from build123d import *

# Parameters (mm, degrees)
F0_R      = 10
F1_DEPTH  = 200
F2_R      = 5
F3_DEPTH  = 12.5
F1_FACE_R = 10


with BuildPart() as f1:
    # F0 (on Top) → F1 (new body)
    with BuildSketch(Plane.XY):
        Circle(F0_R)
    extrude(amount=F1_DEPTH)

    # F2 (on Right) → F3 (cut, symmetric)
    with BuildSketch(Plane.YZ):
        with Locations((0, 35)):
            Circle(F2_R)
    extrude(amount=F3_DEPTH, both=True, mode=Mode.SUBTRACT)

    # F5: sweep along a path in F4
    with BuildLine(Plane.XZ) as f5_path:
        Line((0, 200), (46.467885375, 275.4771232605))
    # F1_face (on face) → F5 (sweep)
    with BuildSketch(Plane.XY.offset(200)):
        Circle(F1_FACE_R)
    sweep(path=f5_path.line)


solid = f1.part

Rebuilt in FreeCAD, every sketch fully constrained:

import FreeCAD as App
import Part
import Sketcher

V = App.Vector
Q = App.Units.Quantity

doc = App.newDocument("Part")
params = doc.addObject("Spreadsheet::Sheet", "Params")
for row, (alias, value) in enumerate([
    ("sketch1_diameter", "20 mm"),
    ("pad1_length", "200 mm"),
    ("sketch2_diameter", "10 mm"),
    ("pocket1_length", "25 mm"),
    ("sketch3_diameter", "20 mm"),
], start=1):
    params.set(f"A{row}", alias)
    params.set(f"B{row}", "=" + value)
    params.setAlias(f"B{row}", alias)

body = doc.addObject("PartDesign::Body", "Body")

# Sketch on XY plane
sketch1 = body.newObject("Sketcher::SketchObject", "Sketch")
sketch1.AttachmentSupport = (doc.getObject("XY_Plane"), [""])
sketch1.MapMode = "FlatFace"
sketch1.addGeometry(Part.Circle(V(0, 0, 0), V(0, 0, 1), 10), False)
sketch1.addConstraint([
    Sketcher.Constraint("Coincident", 0, 3, -1, 1),
    Sketcher.Constraint("Diameter", 0, Q("20 mm")),
])
sketch1.setExpression("Constraints[1]", "Params.sketch1_diameter")
pad1 = body.newObject("PartDesign::Pad", "Pad")
pad1.Profile = sketch1
pad1.setExpression("Length", "Params.pad1_length")

# Sketch on YZ plane
sketch2 = body.newObject("Sketcher::SketchObject", "Sketch001")
sketch2.AttachmentSupport = (doc.getObject("YZ_Plane"), [""])
sketch2.MapMode = "FlatFace"
sketch2.addGeometry(Part.Circle(V(0, 35, 0), V(0, 0, 1), 5), False)
sketch2.addConstraint([
    Sketcher.Constraint("PointOnObject", 0, 3, -2),
    Sketcher.Constraint("Diameter", 0, Q("10 mm")),
    Sketcher.Constraint("DistanceY", -1, 1, 0, 3, Q("35 mm")),
])
sketch2.setExpression("Constraints[1]", "Params.sketch2_diameter")
pocket1 = body.newObject("PartDesign::Pocket", "Pocket")
pocket1.Profile = sketch2
pocket1.setExpression("Length", "Params.pocket1_length")
pocket1.Midplane = True

# Sketch on XY plane
sketch3 = body.newObject("Sketcher::SketchObject", "Sketch002")
sketch3.AttachmentSupport = (doc.getObject("XY_Plane"), [""])
sketch3.MapMode = "FlatFace"
sketch3.AttachmentOffset = App.Placement(V(0, 0, 200), App.Rotation())
sketch3.addGeometry(Part.Circle(V(0, 0, 0), V(0, 0, 1), 10), False)
sketch3.addConstraint([
    Sketcher.Constraint("Coincident", 0, 3, -1, 1),
    Sketcher.Constraint("Diameter", 0, Q("20 mm")),
])
sketch3.setExpression("Constraints[1]", "Params.sketch3_diameter")

# Sketch on an angled plane
sketch4 = body.newObject("Sketcher::SketchObject", "Sketch003")
sketch4.Placement = App.Placement(V(-89.288068, 0, 54.970665), App.Rotation(V(0.524264559, 0, 0.851555443), V(0, 1, 0), V(-0.851555443, 0, 0.524264559), "ZXY"))
sketch4.addGeometry(Part.LineSegment(V(170.311089, 0, 0), V(258.945509, 0, 0)), False)
sketch4.addConstraint([
    Sketcher.Constraint("Horizontal", 0),
    Sketcher.Constraint("PointOnObject", 0, 1, -1),
    Sketcher.Constraint("DistanceX", 0, 1, 0, 2, Q("88.634421 mm")),
    Sketcher.Constraint("DistanceX", -1, 1, 0, 1, Q("170.311089 mm")),
])
doc.recompute()

additivepipe = body.newObject("PartDesign::AdditivePipe", "AdditivePipe")
additivepipe.Profile = sketch3
additivepipe.Spine = (sketch4, ["Edge1"])

doc.recompute()
